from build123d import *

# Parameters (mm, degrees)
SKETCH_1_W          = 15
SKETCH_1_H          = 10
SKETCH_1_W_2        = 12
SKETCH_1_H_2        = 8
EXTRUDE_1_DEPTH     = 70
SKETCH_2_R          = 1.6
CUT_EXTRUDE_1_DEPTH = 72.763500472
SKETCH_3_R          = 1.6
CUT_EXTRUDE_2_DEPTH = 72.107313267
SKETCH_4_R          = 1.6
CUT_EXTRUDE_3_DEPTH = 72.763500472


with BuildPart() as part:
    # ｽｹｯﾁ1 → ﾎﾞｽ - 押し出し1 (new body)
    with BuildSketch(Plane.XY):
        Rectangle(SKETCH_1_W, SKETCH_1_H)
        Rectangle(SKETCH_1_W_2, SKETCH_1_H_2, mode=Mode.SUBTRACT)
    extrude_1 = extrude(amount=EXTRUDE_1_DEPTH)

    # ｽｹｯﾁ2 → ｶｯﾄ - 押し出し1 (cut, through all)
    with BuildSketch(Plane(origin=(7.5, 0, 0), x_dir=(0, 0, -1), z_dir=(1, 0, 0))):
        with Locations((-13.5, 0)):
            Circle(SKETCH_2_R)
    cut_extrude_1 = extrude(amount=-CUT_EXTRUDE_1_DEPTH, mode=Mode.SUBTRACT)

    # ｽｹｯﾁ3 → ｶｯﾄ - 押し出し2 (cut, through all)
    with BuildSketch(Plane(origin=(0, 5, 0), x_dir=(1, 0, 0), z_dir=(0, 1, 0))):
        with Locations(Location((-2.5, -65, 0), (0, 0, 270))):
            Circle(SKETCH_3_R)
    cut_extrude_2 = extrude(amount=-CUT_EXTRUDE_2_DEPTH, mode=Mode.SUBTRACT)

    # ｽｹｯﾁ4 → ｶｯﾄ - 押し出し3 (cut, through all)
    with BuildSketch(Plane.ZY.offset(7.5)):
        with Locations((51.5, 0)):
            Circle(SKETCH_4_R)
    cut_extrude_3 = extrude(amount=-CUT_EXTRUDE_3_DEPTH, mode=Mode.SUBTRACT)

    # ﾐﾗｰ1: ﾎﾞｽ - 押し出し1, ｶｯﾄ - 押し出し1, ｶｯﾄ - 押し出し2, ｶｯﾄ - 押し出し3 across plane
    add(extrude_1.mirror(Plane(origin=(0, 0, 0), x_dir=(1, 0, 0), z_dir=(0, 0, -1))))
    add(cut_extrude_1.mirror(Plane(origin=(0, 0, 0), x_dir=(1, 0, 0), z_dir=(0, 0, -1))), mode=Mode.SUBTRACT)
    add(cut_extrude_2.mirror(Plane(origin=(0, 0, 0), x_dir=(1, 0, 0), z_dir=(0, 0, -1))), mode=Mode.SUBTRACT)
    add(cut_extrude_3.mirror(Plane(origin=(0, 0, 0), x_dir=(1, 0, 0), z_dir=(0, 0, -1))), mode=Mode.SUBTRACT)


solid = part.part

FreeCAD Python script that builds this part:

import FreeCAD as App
import Part
import Sketcher

V = App.Vector

doc = App.newDocument("Part")
body = doc.addObject("PartDesign::Body", "Body")

sketch1 = body.newObject("Sketcher::SketchObject", "Sketch")
sketch1.AttachmentSupport = (doc.getObject("XY_Plane"), [""])
sketch1.MapMode = "FlatFace"
sketch1.addGeometry(Part.LineSegment(V(-8, 5, 0), V(-8, -5, 0)), False)
sketch1.addGeometry(Part.LineSegment(V(-8, -5, 0), V(8, -5, 0)), False)
sketch1.addGeometry(Part.LineSegment(V(8, -5, 0), V(8, 5, 0)), False)
sketch1.addGeometry(Part.LineSegment(V(8, 5, 0), V(-8, 5, 0)), False)
sketch1.addGeometry(Part.LineSegment(V(6, -4, 0), V(-6, -4, 0)), False)
sketch1.addGeometry(Part.LineSegment(V(-6, -4, 0), V(-6, 4, 0)), False)
sketch1.addGeometry(Part.LineSegment(V(-6, 4, 0), V(6, 4, 0)), False)
sketch1.addGeometry(Part.LineSegment(V(6, 4, 0), V(6, -4, 0)), False)
sketch1.addConstraint(Sketcher.Constraint("Coincident", 0, 2, 1, 1))
sketch1.addConstraint(Sketcher.Constraint("Coincident", 1, 2, 2, 1))
sketch1.addConstraint(Sketcher.Constraint("Coincident", 2, 2, 3, 1))
sketch1.addConstraint(Sketcher.Constraint("Coincident", 3, 2, 0, 1))
sketch1.addConstraint(Sketcher.Constraint("Coincident", 4, 2, 5, 1))
sketch1.addConstraint(Sketcher.Constraint("Coincident", 5, 2, 6, 1))
sketch1.addConstraint(Sketcher.Constraint("Coincident", 6, 2, 7, 1))
sketch1.addConstraint(Sketcher.Constraint("Coincident", 7, 2, 4, 1))
sketch1.addConstraint(Sketcher.Constraint("Vertical", 0))
sketch1.addConstraint(Sketcher.Constraint("Horizontal", 1))
sketch1.addConstraint(Sketcher.Constraint("Vertical", 2))
sketch1.addConstraint(Sketcher.Constraint("Horizontal", 3))
sketch1.addConstraint(Sketcher.Constraint("Horizontal", 4))
sketch1.addConstraint(Sketcher.Constraint("Vertical", 5))
sketch1.addConstraint(Sketcher.Constraint("Horizontal", 6))
sketch1.addConstraint(Sketcher.Constraint("Vertical", 7))
sketch1.addConstraint(Sketcher.Constraint("Symmetric", 0, 2, 2, 2, -1, 1))
sketch1.addConstraint(Sketcher.Constraint("Symmetric", 4, 2, 6, 2, -1, 1))
sketch1.addConstraint(Sketcher.Constraint("DistanceX", 1, 1, 1, 2, 15.0))
sketch1.addConstraint(Sketcher.Constraint("DistanceX", 4, 2, 4, 1, 12.0))
sketch1.addConstraint(Sketcher.Constraint("DistanceY", 0, 2, 0, 1, 10.0))
sketch1.addConstraint(Sketcher.Constraint("DistanceY", 5, 1, 5, 2, 8.0))
pad1 = body.newObject("PartDesign::Pad", "Pad")
pad1.Profile = sketch1
pad1.Length = 70

sketch2 = body.newObject("Sketcher::SketchObject", "Sketch001")
sketch2.AttachmentSupport = (doc.getObject("YZ_Plane"), [""])
sketch2.MapMode = "FlatFace"
sketch2.AttachmentOffset = App.Placement(V(0, 0, 7.5), App.Rotation())
sketch2.addGeometry(Part.Circle(V(0, 13.5, 0), V(0, 0, 1), 1.6), False)
sketch2.addConstraint(Sketcher.Constraint("PointOnObject", 0, 3, -2))
sketch2.addConstraint(Sketcher.Constraint("Diameter", 0, 3.2))
sketch2.addConstraint(Sketcher.Constraint("DistanceY", -1, 1, 0, 3, 13.5))
pocket1 = body.newObject("PartDesign::Pocket", "Pocket")
pocket1.Profile = sketch2
pocket1.Type = "ThroughAll"

sketch3 = body.newObject("Sketcher::SketchObject", "Sketch002")
sketch3.AttachmentSupport = (doc.getObject("XZ_Plane"), [""])
sketch3.MapMode = "FlatFace"
sketch3.AttachmentOffset = App.Placement(V(0, 0, -5), App.Rotation())
sketch3.addGeometry(Part.Circle(V(-2.5, 65, 0), V(0, 0, 1), 1.6), False)
sketch3.addConstraint(Sketcher.Constraint("Diameter", 0, 3.2))
sketch3.addConstraint(Sketcher.Constraint("DistanceY", -1, 1, 0, 3, 65.0))
sketch3.addConstraint(Sketcher.Constraint("DistanceX", 0, 3, -1, 1, 2.5))
pocket2 = body.newObject("PartDesign::Pocket", "Pocket001")
pocket2.Profile = sketch3
pocket2.Type = "ThroughAll"
pocket2.Reversed = True

sketch4 = body.newObject("Sketcher::SketchObject", "Sketch003")
sketch4.AttachmentSupport = (doc.getObject("YZ_Plane"), [""])
sketch4.MapMode = "FlatFace"
sketch4.AttachmentOffset = App.Placement(V(0, 0, -7.5), App.Rotation())
sketch4.addGeometry(Part.Circle(V(0, 51.5, 0), V(0, 0, 1), 1.6), False)
sketch4.addConstraint(Sketcher.Constraint("PointOnObject", 0, 3, -2))
sketch4.addConstraint(Sketcher.Constraint("Diameter", 0, 3.2))
sketch4.addConstraint(Sketcher.Constraint("DistanceY", -1, 1, 0, 3, 51.5))
pocket3 = body.newObject("PartDesign::Pocket", "Pocket002")
pocket3.Profile = sketch4
pocket3.Type = "ThroughAll"
pocket3.Reversed = True
doc.recompute()

mirrored = body.newObject("PartDesign::Mirrored", "Mirrored")
mirrored.Originals = [pad1, pocket1, pocket2, pocket3]
mirrored.MirrorPlane = (doc.getObject("XY_Plane"), [""])
body.Tip = mirrored

doc.recompute()
